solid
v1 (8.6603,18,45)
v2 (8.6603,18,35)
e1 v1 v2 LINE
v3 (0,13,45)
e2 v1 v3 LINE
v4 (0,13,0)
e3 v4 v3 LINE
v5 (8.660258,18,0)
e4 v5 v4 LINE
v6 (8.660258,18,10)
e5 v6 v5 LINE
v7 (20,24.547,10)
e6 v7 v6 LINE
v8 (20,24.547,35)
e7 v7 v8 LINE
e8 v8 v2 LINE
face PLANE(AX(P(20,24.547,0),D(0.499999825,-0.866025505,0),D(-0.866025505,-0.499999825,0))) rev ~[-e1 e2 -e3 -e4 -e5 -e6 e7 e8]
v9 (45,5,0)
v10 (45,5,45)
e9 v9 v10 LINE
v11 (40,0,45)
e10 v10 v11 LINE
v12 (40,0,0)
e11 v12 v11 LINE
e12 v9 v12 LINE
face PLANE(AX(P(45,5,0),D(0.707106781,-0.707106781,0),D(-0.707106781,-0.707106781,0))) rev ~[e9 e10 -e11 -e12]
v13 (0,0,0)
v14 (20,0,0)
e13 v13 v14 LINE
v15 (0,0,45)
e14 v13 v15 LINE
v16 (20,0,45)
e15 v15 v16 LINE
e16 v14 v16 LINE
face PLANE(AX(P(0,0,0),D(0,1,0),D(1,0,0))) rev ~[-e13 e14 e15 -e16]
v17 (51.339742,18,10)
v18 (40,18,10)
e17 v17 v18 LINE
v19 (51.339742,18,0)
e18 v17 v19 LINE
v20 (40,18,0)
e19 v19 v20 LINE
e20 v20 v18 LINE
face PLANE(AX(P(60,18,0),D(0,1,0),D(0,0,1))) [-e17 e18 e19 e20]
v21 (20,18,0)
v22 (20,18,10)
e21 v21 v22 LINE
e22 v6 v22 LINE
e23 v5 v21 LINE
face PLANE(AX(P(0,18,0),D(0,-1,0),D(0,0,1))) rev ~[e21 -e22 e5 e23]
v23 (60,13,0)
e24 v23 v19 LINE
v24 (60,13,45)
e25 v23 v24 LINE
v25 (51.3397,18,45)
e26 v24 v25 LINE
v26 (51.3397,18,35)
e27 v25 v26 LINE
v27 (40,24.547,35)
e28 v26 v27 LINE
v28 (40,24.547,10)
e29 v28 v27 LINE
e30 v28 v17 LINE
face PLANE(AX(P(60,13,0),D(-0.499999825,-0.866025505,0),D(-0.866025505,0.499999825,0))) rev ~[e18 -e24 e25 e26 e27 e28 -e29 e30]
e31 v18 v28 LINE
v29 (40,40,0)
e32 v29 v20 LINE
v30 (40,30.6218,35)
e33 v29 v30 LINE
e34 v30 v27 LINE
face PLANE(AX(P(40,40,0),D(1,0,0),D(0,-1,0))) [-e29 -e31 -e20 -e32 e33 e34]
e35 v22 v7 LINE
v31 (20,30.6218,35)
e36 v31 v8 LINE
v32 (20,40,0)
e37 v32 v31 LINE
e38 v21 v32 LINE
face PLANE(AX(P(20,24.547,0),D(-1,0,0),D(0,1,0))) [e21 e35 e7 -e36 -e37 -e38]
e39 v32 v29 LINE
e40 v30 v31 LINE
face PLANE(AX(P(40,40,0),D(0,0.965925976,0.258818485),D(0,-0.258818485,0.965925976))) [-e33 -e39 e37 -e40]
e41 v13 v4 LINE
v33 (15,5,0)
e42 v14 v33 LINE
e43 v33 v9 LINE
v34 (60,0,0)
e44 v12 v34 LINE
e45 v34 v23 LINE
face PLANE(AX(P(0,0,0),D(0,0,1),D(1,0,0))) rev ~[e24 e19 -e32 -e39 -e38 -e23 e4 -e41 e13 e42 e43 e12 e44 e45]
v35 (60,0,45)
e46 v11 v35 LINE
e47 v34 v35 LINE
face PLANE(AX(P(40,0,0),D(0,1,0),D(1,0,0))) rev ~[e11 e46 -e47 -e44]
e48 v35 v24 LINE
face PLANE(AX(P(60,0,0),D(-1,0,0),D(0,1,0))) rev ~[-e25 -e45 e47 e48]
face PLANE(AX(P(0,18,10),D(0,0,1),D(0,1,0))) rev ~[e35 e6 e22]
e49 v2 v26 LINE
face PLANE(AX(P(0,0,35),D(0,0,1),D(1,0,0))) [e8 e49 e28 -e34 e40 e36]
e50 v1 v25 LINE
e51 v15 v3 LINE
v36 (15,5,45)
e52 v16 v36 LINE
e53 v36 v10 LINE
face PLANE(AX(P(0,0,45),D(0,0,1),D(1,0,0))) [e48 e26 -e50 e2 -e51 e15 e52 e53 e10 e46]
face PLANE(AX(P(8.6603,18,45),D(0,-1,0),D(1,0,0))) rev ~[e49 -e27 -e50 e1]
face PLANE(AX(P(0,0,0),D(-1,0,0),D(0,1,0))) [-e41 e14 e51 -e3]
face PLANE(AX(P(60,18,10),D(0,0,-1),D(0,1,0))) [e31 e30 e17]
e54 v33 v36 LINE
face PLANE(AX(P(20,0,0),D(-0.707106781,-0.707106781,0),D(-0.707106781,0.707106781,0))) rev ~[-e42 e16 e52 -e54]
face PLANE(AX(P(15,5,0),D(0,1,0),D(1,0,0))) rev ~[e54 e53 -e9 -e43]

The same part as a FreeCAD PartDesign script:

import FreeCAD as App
import Part
import Sketcher
Q = App.Units.Quantity

doc = App.newDocument("Part")
body = doc.addObject("PartDesign::Body", "Body")

# Sketch on XY plane
sketch1 = body.newObject("Sketcher::SketchObject", "Sketch")
sketch1.AttachmentSupport = (doc.getObject("XY_Plane"), [""])
sketch1.MapMode = "FlatFace"
sketch1.addGeometry([
    Part.LineSegment(App.Vector(0, 13, 0), App.Vector(0, 0, 0)),  # 0
    Part.LineSegment(App.Vector(0, 0, 0), App.Vector(20, 0, 0)),  # 1
    Part.LineSegment(App.Vector(20, 0, 0), App.Vector(15, 5, 0)),  # 2
    Part.LineSegment(App.Vector(15, 5, 0), App.Vector(45, 5, 0)),  # 3
    Part.LineSegment(App.Vector(45, 5, 0), App.Vector(40, 0, 0)),  # 4
    Part.LineSegment(App.Vector(40, 0, 0), App.Vector(60, 0, 0)),  # 5
    Part.LineSegment(App.Vector(60, 0, 0), App.Vector(60, 13, 0)),  # 6
    Part.LineSegment(App.Vector(60, 13, 0), App.Vector(40, 24.547, 0)),  # 7
    Part.LineSegment(App.Vector(40, 24.547, 0), App.Vector(40, 40, 0)),  # 8
    Part.LineSegment(App.Vector(40, 40, 0), App.Vector(20, 40, 0)),  # 9
    Part.LineSegment(App.Vector(20, 40, 0), App.Vector(20, 24.547, 0)),  # 10
    Part.LineSegment(App.Vector(20, 24.547, 0), App.Vector(0, 13, 0)),  # 11
], False)
sketch1.addConstraint([
    Sketcher.Constraint("Coincident", 0, 2, 1, 1),
    Sketcher.Constraint("Coincident", 1, 2, 2, 1),
    Sketcher.Constraint("Coincident", 2, 2, 3, 1),
    Sketcher.Constraint("Coincident", 3, 2, 4, 1),
    Sketcher.Constraint("Coincident", 4, 2, 5, 1),
    Sketcher.Constraint("Coincident", 5, 2, 6, 1),
    Sketcher.Constraint("Coincident", 6, 2, 7, 1),
    Sketcher.Constraint("Coincident", 7, 2, 8, 1),
    Sketcher.Constraint("Coincident", 8, 2, 9, 1),
    Sketcher.Constraint("Coincident", 9, 2, 10, 1),
    Sketcher.Constraint("Coincident", 10, 2, 11, 1),
    Sketcher.Constraint("Coincident", 11, 2, 0, 1),
    Sketcher.Constraint("Vertical", 0),
    Sketcher.Constraint("Horizontal", 1),
    Sketcher.Constraint("Horizontal", 3),
    Sketcher.Constraint("Horizontal", 5),
    Sketcher.Constraint("Vertical", 6),
    Sketcher.Constraint("Vertical", 8),
    Sketcher.Constraint("Horizontal", 9),
    Sketcher.Constraint("Vertical", 10),
    Sketcher.Constraint("Coincident", 0, 2, -1, 1),
    Sketcher.Constraint("PointOnObject", 4, 2, -1),
    Sketcher.Constraint("Perpendicular", 2, 4),
    Sketcher.Constraint("Horizontal", 7, 2, 10, 2),
    Sketcher.Constraint("Horizontal", 6, 2, 11, 2),
    Sketcher.Constraint("Vertical", 4, 2, 7, 2),
    Sketcher.Constraint("Vertical", 1, 2, 9, 2),
    Sketcher.Constraint("Equal", 1, 5),
    Sketcher.Constraint("Equal", 5, 9),
    Sketcher.Constraint("Equal", 2, 4),
    Sketcher.Constraint("DistanceX", 1, 1, 1, 2, 20.0),
    Sketcher.Constraint("DistanceX", 3, 1, 3, 2, 30.0),
    Sketcher.Constraint("DistanceY", 0, 2, 0, 1, 13.0),
    Sketcher.Constraint("Angle", 7, Q("150 deg")),
    Sketcher.Constraint("DistanceY", -1, 1, 8, 2, 40.0),
])
pad1 = body.newObject("PartDesign::Pad", "Pad")
pad1.Profile = sketch1
pad1.Length = 45

# Sketch on XY plane
sketch2 = body.newObject("Sketcher::SketchObject", "Sketch001")
sketch2.AttachmentSupport = (doc.getObject("XY_Plane"), [""])
sketch2.MapMode = "FlatFace"
sketch2.AttachmentOffset = App.Placement(App.Vector(0, 0, 45), App.Rotation())
sketch2.addGeometry([
    Part.LineSegment(App.Vector(20, 40, 0), App.Vector(20, 24.547, 0)),  # 0
    Part.LineSegment(App.Vector(20, 24.547, 0), App.Vector(8.66029, 18.000018, 0)),  # 1
    Part.LineSegment(App.Vector(8.6603, 18, 0), App.Vector(51.3397, 18, 0)),  # 2
    Part.LineSegment(App.Vector(51.33971, 18.000018, 0), App.Vector(40, 24.547, 0)),  # 3
    Part.LineSegment(App.Vector(40, 24.547, 0), App.Vector(40, 40, 0)),  # 4
    Part.LineSegment(App.Vector(40, 40, 0), App.Vector(20, 40, 0)),  # 5
], False)
sketch2.addConstraint([
    Sketcher.Constraint("Coincident", 0, 2, 1, 1),
    Sketcher.Constraint("Coincident", 1, 2, 2, 1),
    Sketcher.Constraint("Coincident", 2, 2, 3, 1),
    Sketcher.Constraint("Coincident", 3, 2, 4, 1),
    Sketcher.Constraint("Coincident", 4, 2, 5, 1),
    Sketcher.Constraint("Coincident", 5, 2, 0, 1),
    Sketcher.Constraint("Vertical", 0),
    Sketcher.Constraint("Horizontal", 2),
    Sketcher.Constraint("Vertical", 4),
    Sketcher.Constraint("Horizontal", 5),
    Sketcher.Constraint("Horizontal", 0, 2, 3, 2),
    Sketcher.Constraint("Equal", 1, 3),
    Sketcher.Constraint("DistanceX", 5, 2, 5, 1, 20.0),
    Sketcher.Constraint("Angle", 1, Q("-150 deg")),
    Sketcher.Constraint("DistanceX", -1, 1, 0, 2, 20.0),
    Sketcher.Constraint("DistanceY", -1, 1, 1, 2, 18.0),
    Sketcher.Constraint("DistanceY", -1, 1, 4, 2, 40.0),
    Sketcher.Constraint("DistanceY", 0, 2, 0, 1, 15.453),
])
pocket1 = body.newObject("PartDesign::Pocket", "Pocket")
pocket1.Profile = sketch2
pocket1.Length = 10

# Sketch on YZ plane
sketch3 = body.newObject("Sketcher::SketchObject", "Sketch002")
sketch3.AttachmentSupport = (doc.getObject("YZ_Plane"), [""])
sketch3.MapMode = "FlatFace"
sketch3.AttachmentOffset = App.Placement(App.Vector(0, 0, 40), App.Rotation())
sketch3.addGeometry([
    Part.LineSegment(App.Vector(40, 35, 0), App.Vector(30.6218, 35, 0)),
    Part.LineSegment(App.Vector(30.6218, 35, 0), App.Vector(40, 0, 0)),
    Part.LineSegment(App.Vector(40, 0, 0), App.Vector(40, 35, 0)),
], False)
sketch3.addConstraint([
    Sketcher.Constraint("Coincident", 0, 2, 1, 1),
    Sketcher.Constraint("Coincident", 1, 2, 2, 1),
    Sketcher.Constraint("Coincident", 2, 2, 0, 1),
    Sketcher.Constraint("Horizontal", 0),
    Sketcher.Constraint("Vertical", 2),
    Sketcher.Constraint("PointOnObject", 1, 2, -1),
    Sketcher.Constraint("DistanceY", 2, 1, 2, 2, 35.0),
    Sketcher.Constraint("Angle", 1, Q("-75 deg")),
    Sketcher.Constraint("DistanceX", -1, 1, 1, 2, 40.0),
])
pocket2 = body.newObject("PartDesign::Pocket", "Pocket001")
pocket2.Profile = sketch3
pocket2.Length = 20

# Sketch on YZ plane
sketch4 = body.newObject("Sketcher::SketchObject", "Sketch003")
sketch4.AttachmentSupport = (doc.getObject("YZ_Plane"), [""])
sketch4.MapMode = "FlatFace"
sketch4.AttachmentOffset = App.Placement(App.Vector(0, 0, 60), App.Rotation())
sketch4.addGeometry([
    Part.LineSegment(App.Vector(18, 10, 0), App.Vector(18, 0, 0)),
    Part.LineSegment(App.Vector(18, 0, 0), App.Vector(24.547, 0, 0)),
    Part.LineSegment(App.Vector(24.547, 0, 0), App.Vector(24.547, 10, 0)),
    Part.LineSegment(App.Vector(24.547, 10, 0), App.Vector(18, 10, 0)),
], False)
sketch4.addConstraint([
    Sketcher.Constraint("Coincident", 0, 2, 1, 1),
    Sketcher.Constraint("Coincident", 1, 2, 2, 1),
    Sketcher.Constraint("Coincident", 2, 2, 3, 1),
    Sketcher.Constraint("Coincident", 3, 2, 0, 1),
    Sketcher.Constraint("Vertical", 0),
    Sketcher.Constraint("Horizontal", 1),
    Sketcher.Constraint("Vertical", 2),
    Sketcher.Constraint("Horizontal", 3),
    Sketcher.Constraint("PointOnObject", 0, 2, -1),
    Sketcher.Constraint("DistanceY", 0, 2, 0, 1, 10.0),
    Sketcher.Constraint("DistanceX", -1, 1, 0, 2, 18.0),
    Sketcher.Constraint("DistanceX", 1, 1, 1, 2, 6.547),
])
pocket3 = body.newObject("PartDesign::Pocket", "Pocket002")
pocket3.Profile = sketch4
pocket3.Length = 20

# Sketch on YZ plane
sketch5 = body.newObject("Sketcher::SketchObject", "Sketch004")
sketch5.AttachmentSupport = (doc.getObject("YZ_Plane"), [""])
sketch5.MapMode = "FlatFace"
sketch5.addGeometry([
    Part.LineSegment(App.Vector(18, 0, 0), App.Vector(18, 10, 0)),
    Part.LineSegment(App.Vector(18, 10, 0), App.Vector(24.547, 10, 0)),
    Part.LineSegment(App.Vector(24.547, 10, 0), App.Vector(24.547, 0, 0)),
    Part.LineSegment(App.Vector(24.547, 0, 0), App.Vector(18, 0, 0)),
], False)
sketch5.addConstraint([
    Sketcher.Constraint("Coincident", 0, 2, 1, 1),
    Sketcher.Constraint("Coincident", 1, 2, 2, 1),
    Sketcher.Constraint("Coincident", 2, 2, 3, 1),
    Sketcher.Constraint("Coincident", 3, 2, 0, 1),
    Sketcher.Constraint("Vertical", 0),
    Sketcher.Constraint("Horizontal", 1),
    Sketcher.Constraint("Vertical", 2),
    Sketcher.Constraint("Horizontal", 3),
    Sketcher.Constraint("PointOnObject", 2, 2, -1),
    Sketcher.Constraint("DistanceY", 0, 1, 0, 2, 10.0),
    Sketcher.Constraint("DistanceX", -1, 1, 0, 2, 18.0),
    Sketcher.Constraint("DistanceX", 1, 1, 1, 2, 6.547),
])
pocket4 = body.newObject("PartDesign::Pocket", "Pocket003")
pocket4.Profile = sketch5
pocket4.Length = 20
pocket4.Reversed = True

doc.recompute()
